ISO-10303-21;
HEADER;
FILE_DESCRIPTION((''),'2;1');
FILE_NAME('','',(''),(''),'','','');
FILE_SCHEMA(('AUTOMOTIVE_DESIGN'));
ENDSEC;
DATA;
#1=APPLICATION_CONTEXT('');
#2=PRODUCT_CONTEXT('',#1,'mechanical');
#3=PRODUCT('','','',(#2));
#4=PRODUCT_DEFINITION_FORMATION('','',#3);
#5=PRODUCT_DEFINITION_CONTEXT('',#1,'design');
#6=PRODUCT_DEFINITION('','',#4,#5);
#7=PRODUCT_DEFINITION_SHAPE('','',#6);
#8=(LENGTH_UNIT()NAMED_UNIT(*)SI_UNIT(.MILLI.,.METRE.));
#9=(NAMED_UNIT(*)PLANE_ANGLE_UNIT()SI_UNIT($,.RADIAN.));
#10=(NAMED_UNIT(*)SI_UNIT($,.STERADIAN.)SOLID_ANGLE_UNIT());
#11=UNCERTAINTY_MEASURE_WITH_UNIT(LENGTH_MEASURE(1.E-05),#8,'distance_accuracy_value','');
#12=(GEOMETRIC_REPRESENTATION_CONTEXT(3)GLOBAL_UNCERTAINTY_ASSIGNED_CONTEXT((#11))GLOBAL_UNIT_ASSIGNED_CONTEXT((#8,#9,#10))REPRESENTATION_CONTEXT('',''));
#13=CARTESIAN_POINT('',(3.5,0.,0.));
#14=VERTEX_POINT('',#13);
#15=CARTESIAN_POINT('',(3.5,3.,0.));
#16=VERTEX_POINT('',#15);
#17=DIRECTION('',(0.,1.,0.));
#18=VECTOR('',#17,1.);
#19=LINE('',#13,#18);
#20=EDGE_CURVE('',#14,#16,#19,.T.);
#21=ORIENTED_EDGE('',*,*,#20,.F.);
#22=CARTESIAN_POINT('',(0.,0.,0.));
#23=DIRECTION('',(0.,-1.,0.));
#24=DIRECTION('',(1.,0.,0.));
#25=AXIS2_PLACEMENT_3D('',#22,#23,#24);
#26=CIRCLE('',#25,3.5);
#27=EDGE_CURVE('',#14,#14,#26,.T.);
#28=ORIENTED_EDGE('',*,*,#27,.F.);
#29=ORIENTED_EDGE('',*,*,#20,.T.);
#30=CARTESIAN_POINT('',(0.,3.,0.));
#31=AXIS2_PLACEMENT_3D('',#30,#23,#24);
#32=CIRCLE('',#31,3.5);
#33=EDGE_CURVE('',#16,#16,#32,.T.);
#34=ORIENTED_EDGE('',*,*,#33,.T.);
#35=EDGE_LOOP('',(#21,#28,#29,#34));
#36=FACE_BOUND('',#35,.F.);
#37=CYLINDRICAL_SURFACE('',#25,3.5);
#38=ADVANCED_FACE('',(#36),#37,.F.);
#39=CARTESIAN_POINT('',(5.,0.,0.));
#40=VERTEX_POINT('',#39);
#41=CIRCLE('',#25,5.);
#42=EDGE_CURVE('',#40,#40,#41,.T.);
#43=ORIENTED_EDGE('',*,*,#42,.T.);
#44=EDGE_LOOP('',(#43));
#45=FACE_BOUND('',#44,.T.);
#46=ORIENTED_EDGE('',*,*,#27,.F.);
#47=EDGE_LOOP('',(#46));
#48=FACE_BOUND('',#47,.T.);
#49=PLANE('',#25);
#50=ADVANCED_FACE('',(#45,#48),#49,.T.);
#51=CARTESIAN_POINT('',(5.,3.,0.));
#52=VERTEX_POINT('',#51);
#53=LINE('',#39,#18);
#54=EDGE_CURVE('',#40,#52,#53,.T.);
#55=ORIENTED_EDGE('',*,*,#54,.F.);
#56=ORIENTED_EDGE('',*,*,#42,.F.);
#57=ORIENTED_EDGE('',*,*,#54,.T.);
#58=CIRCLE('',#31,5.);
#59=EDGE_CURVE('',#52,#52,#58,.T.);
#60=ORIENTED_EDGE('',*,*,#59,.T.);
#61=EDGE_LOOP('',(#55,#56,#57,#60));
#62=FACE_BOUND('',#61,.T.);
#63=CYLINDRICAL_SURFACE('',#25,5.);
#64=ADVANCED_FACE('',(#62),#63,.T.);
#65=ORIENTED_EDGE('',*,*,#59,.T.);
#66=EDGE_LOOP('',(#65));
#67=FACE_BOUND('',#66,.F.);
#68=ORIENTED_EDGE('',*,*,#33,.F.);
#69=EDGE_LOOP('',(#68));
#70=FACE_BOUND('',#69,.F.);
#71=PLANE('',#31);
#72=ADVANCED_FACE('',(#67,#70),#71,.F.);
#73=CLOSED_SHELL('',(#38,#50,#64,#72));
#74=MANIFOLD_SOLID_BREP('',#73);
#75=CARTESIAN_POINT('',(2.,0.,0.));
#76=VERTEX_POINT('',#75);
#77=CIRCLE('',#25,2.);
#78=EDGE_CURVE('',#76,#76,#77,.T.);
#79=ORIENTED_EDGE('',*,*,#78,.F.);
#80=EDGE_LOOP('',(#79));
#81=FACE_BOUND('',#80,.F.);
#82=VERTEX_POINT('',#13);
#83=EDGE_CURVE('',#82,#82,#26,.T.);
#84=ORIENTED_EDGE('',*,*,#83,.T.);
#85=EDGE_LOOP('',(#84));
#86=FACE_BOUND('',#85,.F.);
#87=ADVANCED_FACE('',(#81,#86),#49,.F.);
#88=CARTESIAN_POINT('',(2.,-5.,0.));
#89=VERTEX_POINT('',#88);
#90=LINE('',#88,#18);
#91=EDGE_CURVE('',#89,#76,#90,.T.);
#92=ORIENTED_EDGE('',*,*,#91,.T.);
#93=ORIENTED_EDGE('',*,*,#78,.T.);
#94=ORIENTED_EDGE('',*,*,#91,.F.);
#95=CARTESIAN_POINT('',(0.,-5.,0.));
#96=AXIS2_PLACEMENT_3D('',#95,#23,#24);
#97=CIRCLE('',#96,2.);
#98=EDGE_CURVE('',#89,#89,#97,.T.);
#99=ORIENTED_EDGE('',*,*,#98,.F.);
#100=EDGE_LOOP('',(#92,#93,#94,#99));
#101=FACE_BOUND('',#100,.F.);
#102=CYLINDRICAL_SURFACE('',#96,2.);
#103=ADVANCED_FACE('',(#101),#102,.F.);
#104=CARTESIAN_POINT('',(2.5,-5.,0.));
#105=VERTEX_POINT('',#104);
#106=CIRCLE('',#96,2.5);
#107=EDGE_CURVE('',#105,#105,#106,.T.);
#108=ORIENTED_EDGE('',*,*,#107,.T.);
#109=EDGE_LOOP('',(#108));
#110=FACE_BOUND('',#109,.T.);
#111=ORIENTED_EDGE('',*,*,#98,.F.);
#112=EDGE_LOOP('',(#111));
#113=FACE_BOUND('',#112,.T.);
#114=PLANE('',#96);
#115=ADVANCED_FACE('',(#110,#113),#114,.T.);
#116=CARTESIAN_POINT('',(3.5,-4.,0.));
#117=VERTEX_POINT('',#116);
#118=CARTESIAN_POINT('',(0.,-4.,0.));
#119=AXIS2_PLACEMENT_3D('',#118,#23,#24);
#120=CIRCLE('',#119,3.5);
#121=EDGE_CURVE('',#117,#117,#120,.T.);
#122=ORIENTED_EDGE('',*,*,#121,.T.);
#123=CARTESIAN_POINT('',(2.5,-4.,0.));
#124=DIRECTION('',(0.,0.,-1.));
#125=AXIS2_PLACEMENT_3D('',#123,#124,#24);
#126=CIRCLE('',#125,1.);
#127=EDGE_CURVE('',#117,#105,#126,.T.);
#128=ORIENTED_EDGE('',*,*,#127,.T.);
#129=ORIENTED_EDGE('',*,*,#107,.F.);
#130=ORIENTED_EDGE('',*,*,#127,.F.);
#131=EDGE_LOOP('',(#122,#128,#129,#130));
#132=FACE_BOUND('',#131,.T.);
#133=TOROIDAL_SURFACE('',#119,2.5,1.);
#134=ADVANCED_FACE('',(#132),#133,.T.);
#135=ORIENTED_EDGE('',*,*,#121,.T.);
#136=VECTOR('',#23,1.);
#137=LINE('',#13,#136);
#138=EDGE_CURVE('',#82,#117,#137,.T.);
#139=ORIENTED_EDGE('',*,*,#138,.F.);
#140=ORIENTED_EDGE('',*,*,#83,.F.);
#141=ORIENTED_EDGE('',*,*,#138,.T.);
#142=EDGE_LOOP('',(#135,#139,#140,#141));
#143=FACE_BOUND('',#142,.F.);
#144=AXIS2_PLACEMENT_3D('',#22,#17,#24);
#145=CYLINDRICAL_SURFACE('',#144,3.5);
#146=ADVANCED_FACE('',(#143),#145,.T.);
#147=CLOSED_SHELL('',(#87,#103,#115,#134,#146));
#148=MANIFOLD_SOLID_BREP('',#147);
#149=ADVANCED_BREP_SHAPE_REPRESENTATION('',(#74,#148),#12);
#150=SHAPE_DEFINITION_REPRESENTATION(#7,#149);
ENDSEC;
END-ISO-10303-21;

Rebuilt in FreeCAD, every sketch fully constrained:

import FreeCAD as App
import Part
import Sketcher
Q = App.Units.Quantity


def edges_at(feature, points):
    """Names of the edges that pass closest to the given points."""
    edges = feature.Shape.Edges
    near = lambda p: min(range(len(edges)), key=lambda i: edges[i].distToShape(Part.Vertex(*p))[0])
    return sorted({f"Edge{near(p) + 1}" for p in points})

doc = App.newDocument("Part")
params = doc.addObject("Spreadsheet::Sheet", "Params")
for row, (alias, value) in enumerate([
    ("sketch1_diameter", "10 mm"),
    ("sketch1_diameter2", "7 mm"),
    ("pad1_length", "3 mm"),
    ("sketch2_diameter", "7 mm"),
    ("pad2_length", "5 mm"),
    ("sketch3_diameter", "4 mm"),
    ("pocket1_length", "5 mm"),
    ("fillet_radius", "1 mm"),
], start=1):
    params.set(f"A{row}", alias)
    params.set(f"B{row}", "=" + value)
    params.setAlias(f"B{row}", alias)

body = doc.addObject("PartDesign::Body", "Body")

# Sketch on XZ plane
sketch1 = body.newObject("Sketcher::SketchObject", "Sketch")
sketch1.AttachmentSupport = (doc.getObject("XZ_Plane"), [""])
sketch1.MapMode = "FlatFace"
sketch1.addGeometry(Part.Circle(App.Vector(0, 0, 0), App.Vector(0, 0, 1), 5), False)
sketch1.addGeometry(Part.Circle(App.Vector(0, 0, 0), App.Vector(0, 0, 1), 3.5), False)
sketch1.addConstraint(Sketcher.Constraint("Coincident", 0, 3, -1, 1))
sketch1.addConstraint(Sketcher.Constraint("Coincident", 1, 3, -1, 1))
sketch1.addConstraint(Sketcher.Constraint("Diameter", 0, Q("10 mm")))
sketch1.addConstraint(Sketcher.Constraint("Diameter", 1, Q("7 mm")))
sketch1.setExpression("Constraints[2]", "Params.sketch1_diameter")
sketch1.setExpression("Constraints[3]", "Params.sketch1_diameter2")
pad1 = body.newObject("PartDesign::Pad", "Pad")
pad1.Profile = sketch1
pad1.setExpression("Length", "Params.pad1_length")
pad1.Reversed = True
body2 = doc.addObject("PartDesign::Body", "Body001")

# Sketch on XZ plane
sketch2 = body2.newObject("Sketcher::SketchObject", "Sketch001")
sketch2.AttachmentSupport = (doc.getObject("XZ_Plane001"), [""])
sketch2.MapMode = "FlatFace"
sketch2.addGeometry(Part.Circle(App.Vector(0, 0, 0), App.Vector(0, 0, 1), 3.5), False)
sketch2.addConstraint(Sketcher.Constraint("Coincident", 0, 3, -1, 1))
sketch2.addConstraint(Sketcher.Constraint("Diameter", 0, Q("7 mm")))
sketch2.setExpression("Constraints[1]", "Params.sketch2_diameter")
pad2 = body2.newObject("PartDesign::Pad", "Pad001")
pad2.Profile = sketch2
pad2.setExpression("Length", "Params.pad2_length")

# Sketch on XZ plane
sketch3 = body2.newObject("Sketcher::SketchObject", "Sketch002")
sketch3.AttachmentSupport = (doc.getObject("XZ_Plane001"), [""])
sketch3.MapMode = "FlatFace"
sketch3.AttachmentOffset = App.Placement(App.Vector(0, 0, 5), App.Rotation())
sketch3.addGeometry(Part.Circle(App.Vector(0, 0, 0), App.Vector(0, 0, 1), 2), False)
sketch3.addConstraint(Sketcher.Constraint("Coincident", 0, 3, -1, 1))
sketch3.addConstraint(Sketcher.Constraint("Diameter", 0, Q("4 mm")))
sketch3.setExpression("Constraints[1]", "Params.sketch3_diameter")
pocket1 = body2.newObject("PartDesign::Pocket", "Pocket")
pocket1.Profile = sketch3
pocket1.setExpression("Length", "Params.pocket1_length")
doc.recompute()

fillet = body2.newObject("PartDesign::Fillet", "Fillet")
fillet.Base = (pocket1, edges_at(pocket1, [(-3.5, -5, 0)]))
fillet.setExpression("Radius", "Params.fillet_radius")

doc.recompute()
